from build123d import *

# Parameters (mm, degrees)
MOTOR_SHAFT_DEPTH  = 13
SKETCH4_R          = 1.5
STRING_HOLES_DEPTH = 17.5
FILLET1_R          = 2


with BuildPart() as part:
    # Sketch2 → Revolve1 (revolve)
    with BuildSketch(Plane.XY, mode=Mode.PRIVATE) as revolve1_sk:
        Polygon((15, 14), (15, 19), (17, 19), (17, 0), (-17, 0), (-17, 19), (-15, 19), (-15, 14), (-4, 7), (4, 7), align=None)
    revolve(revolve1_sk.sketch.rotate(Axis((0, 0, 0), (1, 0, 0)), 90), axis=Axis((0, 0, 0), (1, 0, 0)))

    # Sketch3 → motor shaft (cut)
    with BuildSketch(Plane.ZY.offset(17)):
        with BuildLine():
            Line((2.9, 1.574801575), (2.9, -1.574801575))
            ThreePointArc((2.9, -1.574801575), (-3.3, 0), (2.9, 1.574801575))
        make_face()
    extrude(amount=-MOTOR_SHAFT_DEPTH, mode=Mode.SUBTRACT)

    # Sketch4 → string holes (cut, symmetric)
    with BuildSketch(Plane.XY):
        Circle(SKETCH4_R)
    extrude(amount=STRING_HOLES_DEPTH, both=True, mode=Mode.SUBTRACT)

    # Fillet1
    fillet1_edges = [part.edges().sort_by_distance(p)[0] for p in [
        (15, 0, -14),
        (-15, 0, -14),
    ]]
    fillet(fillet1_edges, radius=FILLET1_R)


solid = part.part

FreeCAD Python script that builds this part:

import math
import FreeCAD as App
import Part
import Sketcher


def edges_at(feature, points):
    """Names of the edges that pass closest to the given points."""
    edges = feature.Shape.Edges
    near = lambda p: min(range(len(edges)), key=lambda i: edges[i].distToShape(Part.Vertex(*p))[0])
    return sorted({f"Edge{near(p) + 1}" for p in points})

doc = App.newDocument("Part")
body = doc.addObject("PartDesign::Body", "Body")

# Sketch on XY plane
sketch1 = body.newObject("Sketcher::SketchObject", "Sketch")
sketch1.AttachmentSupport = (doc.getObject("XY_Plane"), [""])
sketch1.MapMode = "FlatFace"
sketch1.addGeometry(Part.LineSegment(App.Vector(15, 19, 0), App.Vector(15, 14, 0)), False)
sketch1.addGeometry(Part.LineSegment(App.Vector(15, 14, 0), App.Vector(4, 7, 0)), False)
sketch1.addGeometry(Part.LineSegment(App.Vector(4, 7, 0), App.Vector(-4, 7, 0)), False)
sketch1.addGeometry(Part.LineSegment(App.Vector(-4, 7, 0), App.Vector(-15, 14, 0)), False)
sketch1.addGeometry(Part.LineSegment(App.Vector(-15, 14, 0), App.Vector(-15, 19, 0)), False)
sketch1.addGeometry(Part.LineSegment(App.Vector(-15, 19, 0), App.Vector(-17, 19, 0)), False)
sketch1.addGeometry(Part.LineSegment(App.Vector(-17, 19, 0), App.Vector(-17, 0, 0)), False)
sketch1.addGeometry(Part.LineSegment(App.Vector(-17, 0, 0), App.Vector(17, 0, 0)), False)
sketch1.addGeometry(Part.LineSegment(App.Vector(17, 0, 0), App.Vector(17, 19, 0)), False)
sketch1.addGeometry(Part.LineSegment(App.Vector(17, 19, 0), App.Vector(15, 19, 0)), False)
sketch1.addConstraint(Sketcher.Constraint("Coincident", 0, 2, 1, 1))
sketch1.addConstraint(Sketcher.Constraint("Coincident", 1, 2, 2, 1))
sketch1.addConstraint(Sketcher.Constraint("Coincident", 2, 2, 3, 1))
sketch1.addConstraint(Sketcher.Constraint("Coincident", 3, 2, 4, 1))
sketch1.addConstraint(Sketcher.Constraint("Coincident", 4, 2, 5, 1))
sketch1.addConstraint(Sketcher.Constraint("Coincident", 5, 2, 6, 1))
sketch1.addConstraint(Sketcher.Constraint("Coincident", 6, 2, 7, 1))
sketch1.addConstraint(Sketcher.Constraint("Coincident", 7, 2, 8, 1))
sketch1.addConstraint(Sketcher.Constraint("Coincident", 8, 2, 9, 1))
sketch1.addConstraint(Sketcher.Constraint("Coincident", 9, 2, 0, 1))
sketch1.addConstraint(Sketcher.Constraint("Vertical", 0))
sketch1.addConstraint(Sketcher.Constraint("Horizontal", 2))
sketch1.addConstraint(Sketcher.Constraint("Vertical", 4))
sketch1.addConstraint(Sketcher.Constraint("Horizontal", 5))
sketch1.addConstraint(Sketcher.Constraint("Vertical", 6))
sketch1.addConstraint(Sketcher.Constraint("Horizontal", 7))
sketch1.addConstraint(Sketcher.Constraint("Vertical", 8))
sketch1.addConstraint(Sketcher.Constraint("Horizontal", 9))
sketch1.addConstraint(Sketcher.Constraint("Symmetric", 6, 2, 7, 2, -1, 1))
sketch1.addConstraint(Sketcher.Constraint("Symmetric", 0, 2, 3, 2, -2))
sketch1.addConstraint(Sketcher.Constraint("Horizontal", 5, 2, 8, 2))
sketch1.addConstraint(Sketcher.Constraint("Equal", 1, 3))
sketch1.addConstraint(Sketcher.Constraint("DistanceX", 2, 2, 2, 1, 8.0))
sketch1.addConstraint(Sketcher.Constraint("DistanceX", 5, 2, 5, 1, 2.0))
sketch1.addConstraint(Sketcher.Constraint("DistanceX", 7, 1, 7, 2, 34.0))
sketch1.addConstraint(Sketcher.Constraint("DistanceY", 0, 2, 0, 1, 5.0))
sketch1.addConstraint(Sketcher.Constraint("DistanceY", 6, 2, 6, 1, 19.0))
sketch1.addConstraint(Sketcher.Constraint("DistanceY", -1, 1, 1, 2, 7.0))
revolution = body.newObject("PartDesign::Revolution", "Revolution")
revolution.Profile = sketch1
revolution.ReferenceAxis = (sketch1, ["H_Axis"])
revolution.Angle = 360

# Sketch on YZ plane
sketch2 = body.newObject("Sketcher::SketchObject", "Sketch001")
sketch2.AttachmentSupport = (doc.getObject("YZ_Plane"), [""])
sketch2.MapMode = "FlatFace"
sketch2.AttachmentOffset = App.Placement(App.Vector(0, 0, -17), App.Rotation())
sketch2.addGeometry(Part.LineSegment(App.Vector(-1.6, 2.9, 0), App.Vector(1.6, 2.9, 0)), False)
sketch2.addGeometry(Part.ArcOfCircle(Part.Circle(App.Vector(0, 0, 0), App.Vector(0, 0, 1), 3.3), math.radians(119), math.radians(421)), False)
sketch2.addConstraint(Sketcher.Constraint("Coincident", 0, 1, 1, 1))
sketch2.addConstraint(Sketcher.Constraint("Coincident", 1, 2, 0, 2))
sketch2.addConstraint(Sketcher.Constraint("Horizontal", 0))
sketch2.addConstraint(Sketcher.Constraint("Coincident", 1, 3, -1, 1))
sketch2.addConstraint(Sketcher.Constraint("Radius", 1, 3.3))
sketch2.addConstraint(Sketcher.Constraint("DistanceY", -1, 1, 0, 1, 2.9))
pocket1 = body.newObject("PartDesign::Pocket", "Pocket")
pocket1.Profile = sketch2
pocket1.Length = 13
pocket1.Reversed = True

# Sketch on XY plane
sketch3 = body.newObject("Sketcher::SketchObject", "Sketch002")
sketch3.AttachmentSupport = (doc.getObject("XY_Plane"), [""])
sketch3.MapMode = "FlatFace"
sketch3.addGeometry(Part.Circle(App.Vector(0, 0, 0), App.Vector(0, 0, 1), 1.5), False)
sketch3.addConstraint(Sketcher.Constraint("Coincident", 0, 3, -1, 1))
sketch3.addConstraint(Sketcher.Constraint("Diameter", 0, 3.0))
pocket2 = body.newObject("PartDesign::Pocket", "Pocket001")
pocket2.Profile = sketch3
pocket2.Length = 35
pocket2.Midplane = True
doc.recompute()

fillet = body.newObject("PartDesign::Fillet", "Fillet")
fillet.Base = (pocket2, edges_at(pocket2, [(15, 0, -14), (-15, 0, -14)]))
fillet.Radius = 2

doc.recompute()
